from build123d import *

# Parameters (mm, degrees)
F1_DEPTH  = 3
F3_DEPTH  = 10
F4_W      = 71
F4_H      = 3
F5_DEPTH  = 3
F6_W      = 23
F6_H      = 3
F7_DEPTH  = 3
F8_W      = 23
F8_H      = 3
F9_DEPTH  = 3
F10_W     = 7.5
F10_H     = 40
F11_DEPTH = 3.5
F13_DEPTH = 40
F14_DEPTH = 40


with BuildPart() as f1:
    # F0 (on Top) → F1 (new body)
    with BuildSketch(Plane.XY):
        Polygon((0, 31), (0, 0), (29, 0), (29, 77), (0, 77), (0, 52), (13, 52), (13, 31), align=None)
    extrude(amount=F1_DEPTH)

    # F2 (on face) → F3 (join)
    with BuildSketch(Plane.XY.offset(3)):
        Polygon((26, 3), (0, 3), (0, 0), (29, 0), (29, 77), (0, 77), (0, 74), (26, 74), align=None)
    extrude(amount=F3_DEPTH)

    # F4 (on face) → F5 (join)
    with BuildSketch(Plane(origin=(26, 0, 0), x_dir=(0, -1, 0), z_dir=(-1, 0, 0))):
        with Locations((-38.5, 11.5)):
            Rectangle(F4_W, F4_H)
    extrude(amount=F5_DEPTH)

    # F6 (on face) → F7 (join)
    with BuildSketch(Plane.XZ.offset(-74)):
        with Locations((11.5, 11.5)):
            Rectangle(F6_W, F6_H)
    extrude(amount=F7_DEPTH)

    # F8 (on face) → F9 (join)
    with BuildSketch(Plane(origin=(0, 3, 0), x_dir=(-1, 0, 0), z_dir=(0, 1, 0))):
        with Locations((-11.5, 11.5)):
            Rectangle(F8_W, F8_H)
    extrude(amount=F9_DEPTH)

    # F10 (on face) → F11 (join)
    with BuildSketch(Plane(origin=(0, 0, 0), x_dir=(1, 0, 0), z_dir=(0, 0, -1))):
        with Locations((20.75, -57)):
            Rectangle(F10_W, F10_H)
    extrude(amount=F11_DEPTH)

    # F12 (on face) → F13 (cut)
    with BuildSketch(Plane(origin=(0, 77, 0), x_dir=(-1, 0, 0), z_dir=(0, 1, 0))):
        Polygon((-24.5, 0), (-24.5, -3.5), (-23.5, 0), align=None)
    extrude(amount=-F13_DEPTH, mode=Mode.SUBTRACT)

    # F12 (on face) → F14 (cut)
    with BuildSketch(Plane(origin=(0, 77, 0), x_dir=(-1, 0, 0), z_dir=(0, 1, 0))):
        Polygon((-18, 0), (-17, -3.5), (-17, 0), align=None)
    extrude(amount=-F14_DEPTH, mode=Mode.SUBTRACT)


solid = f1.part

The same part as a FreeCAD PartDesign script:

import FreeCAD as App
import Part
import Sketcher


def add_polygon(sketch, points):
    """Adds a closed chain of lines whose ends are joined by coincident constraints."""
    first, n = sketch.GeometryCount, len(points)
    for a, b in zip(points, points[1:] + points[:1]):
        sketch.addGeometry(Part.LineSegment(App.Vector(*a, 0), App.Vector(*b, 0)), False)
    for i in range(n):
        sketch.addConstraint(Sketcher.Constraint("Coincident", first + i, 2, first + (i + 1) % n, 1))

doc = App.newDocument("Part")
body = doc.addObject("PartDesign::Body", "Body")

# Sketch on XY plane
sketch1 = body.newObject("Sketcher::SketchObject", "Sketch")
sketch1.AttachmentSupport = (doc.getObject("XY_Plane"), [""])
sketch1.MapMode = "FlatFace"
add_polygon(sketch1, [(0, 31), (0, 0), (29, 0), (29, 77), (0, 77), (0, 52), (13, 52), (13, 31)])  # lines 0-7
sketch1.addConstraint(Sketcher.Constraint("Vertical", 0))
sketch1.addConstraint(Sketcher.Constraint("Horizontal", 1))
sketch1.addConstraint(Sketcher.Constraint("Vertical", 2))
sketch1.addConstraint(Sketcher.Constraint("Horizontal", 3))
sketch1.addConstraint(Sketcher.Constraint("Vertical", 4))
sketch1.addConstraint(Sketcher.Constraint("Horizontal", 5))
sketch1.addConstraint(Sketcher.Constraint("Vertical", 6))
sketch1.addConstraint(Sketcher.Constraint("Horizontal", 7))
sketch1.addConstraint(Sketcher.Constraint("Coincident", 0, 2, -1, 1))
sketch1.addConstraint(Sketcher.Constraint("PointOnObject", 3, 2, -2))
sketch1.addConstraint(Sketcher.Constraint("DistanceX", 1, 1, 1, 2, 29.0))
sketch1.addConstraint(Sketcher.Constraint("DistanceX", 5, 1, 5, 2, 13.0))
sketch1.addConstraint(Sketcher.Constraint("DistanceY", 0, 2, 0, 1, 31.0))
sketch1.addConstraint(Sketcher.Constraint("DistanceY", 2, 1, 2, 2, 77.0))
sketch1.addConstraint(Sketcher.Constraint("DistanceY", 4, 2, 4, 1, 25.0))
pad1 = body.newObject("PartDesign::Pad", "Pad")
pad1.Profile = sketch1
pad1.Length = 3

# Sketch on XY plane
sketch2 = body.newObject("Sketcher::SketchObject", "Sketch001")
sketch2.AttachmentSupport = (doc.getObject("XY_Plane"), [""])
sketch2.MapMode = "FlatFace"
sketch2.AttachmentOffset = App.Placement(App.Vector(0, 0, 3), App.Rotation())
add_polygon(sketch2, [(26, 3), (0, 3), (0, 0), (29, 0), (29, 77), (0, 77), (0, 74), (26, 74)])  # lines 0-7
sketch2.addConstraint(Sketcher.Constraint("Horizontal", 0))
sketch2.addConstraint(Sketcher.Constraint("Vertical", 1))
sketch2.addConstraint(Sketcher.Constraint("Horizontal", 2))
sketch2.addConstraint(Sketcher.Constraint("Vertical", 3))
sketch2.addConstraint(Sketcher.Constraint("Horizontal", 4))
sketch2.addConstraint(Sketcher.Constraint("Vertical", 5))
sketch2.addConstraint(Sketcher.Constraint("Horizontal", 6))
sketch2.addConstraint(Sketcher.Constraint("Vertical", 7))
sketch2.addConstraint(Sketcher.Constraint("Coincident", 1, 2, -1, 1))
sketch2.addConstraint(Sketcher.Constraint("PointOnObject", 4, 2, -2))
sketch2.addConstraint(Sketcher.Constraint("Equal", 1, 5))
sketch2.addConstraint(Sketcher.Constraint("DistanceX", 0, 2, 0, 1, 26.0))
sketch2.addConstraint(Sketcher.Constraint("DistanceX", 2, 1, 2, 2, 29.0))
sketch2.addConstraint(Sketcher.Constraint("DistanceY", 1, 2, 1, 1, 3.0))
sketch2.addConstraint(Sketcher.Constraint("DistanceY", 3, 1, 3, 2, 77.0))
pad2 = body.newObject("PartDesign::Pad", "Pad001")
pad2.Profile = sketch2
pad2.Length = 10

# Sketch on YZ plane
sketch3 = body.newObject("Sketcher::SketchObject", "Sketch002")
sketch3.AttachmentSupport = (doc.getObject("YZ_Plane"), [""])
sketch3.MapMode = "FlatFace"
sketch3.AttachmentOffset = App.Placement(App.Vector(0, 0, 26), App.Rotation())
add_polygon(sketch3, [(74, 13), (74, 10), (3, 10), (3, 13)])  # lines 0-3
sketch3.addConstraint(Sketcher.Constraint("Vertical", 0))
sketch3.addConstraint(Sketcher.Constraint("Horizontal", 1))
sketch3.addConstraint(Sketcher.Constraint("Vertical", 2))
sketch3.addConstraint(Sketcher.Constraint("Horizontal", 3))
sketch3.addConstraint(Sketcher.Constraint("DistanceX", 1, 2, 1, 1, 71.0))
sketch3.addConstraint(Sketcher.Constraint("DistanceY", 0, 2, 0, 1, 3.0))
sketch3.addConstraint(Sketcher.Constraint("DistanceX", -1, 1, 0, 2, 74.0))
sketch3.addConstraint(Sketcher.Constraint("DistanceY", -1, 1, 0, 2, 10.0))
pad3 = body.newObject("PartDesign::Pad", "Pad002")
pad3.Profile = sketch3
pad3.Length = 3
pad3.Reversed = True

# Sketch on XZ plane
sketch4 = body.newObject("Sketcher::SketchObject", "Sketch003")
sketch4.AttachmentSupport = (doc.getObject("XZ_Plane"), [""])
sketch4.MapMode = "FlatFace"
sketch4.AttachmentOffset = App.Placement(App.Vector(0, 0, -74), App.Rotation())
add_polygon(sketch4, [(0, 13), (0, 10), (23, 10), (23, 13)])  # lines 0-3
sketch4.addConstraint(Sketcher.Constraint("Vertical", 0))
sketch4.addConstraint(Sketcher.Constraint("Horizontal", 1))
sketch4.addConstraint(Sketcher.Constraint("Vertical", 2))
sketch4.addConstraint(Sketcher.Constraint("Horizontal", 3))
sketch4.addConstraint(Sketcher.Constraint("PointOnObject", 0, 2, -2))
sketch4.addConstraint(Sketcher.Constraint("DistanceX", 1, 1, 1, 2, 23.0))
sketch4.addConstraint(Sketcher.Constraint("DistanceY", 0, 2, 0, 1, 3.0))
sketch4.addConstraint(Sketcher.Constraint("DistanceY", -1, 1, 0, 2, 10.0))
pad4 = body.newObject("PartDesign::Pad", "Pad003")
pad4.Profile = sketch4
pad4.Length = 3

# Sketch on XZ plane
sketch5 = body.newObject("Sketcher::SketchObject", "Sketch004")
sketch5.AttachmentSupport = (doc.getObject("XZ_Plane"), [""])
sketch5.MapMode = "FlatFace"
sketch5.AttachmentOffset = App.Placement(App.Vector(0, 0, -3), App.Rotation())
add_polygon(sketch5, [(23, 13), (23, 10), (0, 10), (0, 13)])  # lines 0-3
sketch5.addConstraint(Sketcher.Constraint("Vertical", 0))
sketch5.addConstraint(Sketcher.Constraint("Horizontal", 1))
sketch5.addConstraint(Sketcher.Constraint("Vertical", 2))
sketch5.addConstraint(Sketcher.Constraint("Horizontal", 3))
sketch5.addConstraint(Sketcher.Constraint("PointOnObject", 1, 2, -2))
sketch5.addConstraint(Sketcher.Constraint("DistanceX", 1, 2, 1, 1, 23.0))
sketch5.addConstraint(Sketcher.Constraint("DistanceY", 0, 2, 0, 1, 3.0))
sketch5.addConstraint(Sketcher.Constraint("DistanceY", -1, 1, 0, 2, 10.0))
pad5 = body.newObject("PartDesign::Pad", "Pad004")
pad5.Profile = sketch5
pad5.Length = 3
pad5.Reversed = True

# Sketch on XY plane
sketch6 = body.newObject("Sketcher::SketchObject", "Sketch005")
sketch6.AttachmentSupport = (doc.getObject("XY_Plane"), [""])
sketch6.MapMode = "FlatFace"
add_polygon(sketch6, [(17, 37), (17, 77), (24.5, 77), (24.5, 37)])  # lines 0-3
sketch6.addConstraint(Sketcher.Constraint("Vertical", 0))
sketch6.addConstraint(Sketcher.Constraint("Horizontal", 1))
sketch6.addConstraint(Sketcher.Constraint("Vertical", 2))
sketch6.addConstraint(Sketcher.Constraint("Horizontal", 3))
sketch6.addConstraint(Sketcher.Constraint("DistanceY", 0, 1, 0, 2, 40.0))
sketch6.addConstraint(Sketcher.Constraint("DistanceX", 1, 1, 1, 2, 7.5))
sketch6.addConstraint(Sketcher.Constraint("DistanceX", -1, 1, 0, 2, 17.0))
sketch6.addConstraint(Sketcher.Constraint("DistanceY", -1, 1, 0, 2, 77.0))
pad6 = body.newObject("PartDesign::Pad", "Pad005")
pad6.Profile = sketch6
pad6.Length = 3.5
pad6.Reversed = True

# Sketch on XZ plane
sketch7 = body.newObject("Sketcher::SketchObject", "Sketch006")
sketch7.AttachmentSupport = (doc.getObject("XZ_Plane"), [""])
sketch7.MapMode = "FlatFace"
sketch7.AttachmentOffset = App.Placement(App.Vector(0, 0, -77), App.Rotation())
add_polygon(sketch7, [(24.5, 0), (24.5, -3.5), (23.5, 0)])  # lines 0-2
sketch7.addConstraint(Sketcher.Constraint("Vertical", 0))
sketch7.addConstraint(Sketcher.Constraint("Horizontal", 2))
sketch7.addConstraint(Sketcher.Constraint("PointOnObject", 1, 2, -1))
sketch7.addConstraint(Sketcher.Constraint("DistanceX", 2, 1, 2, 2, 1.0))
sketch7.addConstraint(Sketcher.Constraint("DistanceY", 0, 2, 0, 1, 3.5))
sketch7.addConstraint(Sketcher.Constraint("DistanceX", -1, 1, 0, 2, 24.5))
pocket1 = body.newObject("PartDesign::Pocket", "Pocket")
pocket1.Profile = sketch7
pocket1.Length = 40
pocket1.Reversed = True

# Sketch on XZ plane
sketch8 = body.newObject("Sketcher::SketchObject", "Sketch007")
sketch8.AttachmentSupport = (doc.getObject("XZ_Plane"), [""])
sketch8.MapMode = "FlatFace"
sketch8.AttachmentOffset = App.Placement(App.Vector(0, 0, -77), App.Rotation())
add_polygon(sketch8, [(18, 0), (17, -3.5), (17, 0)])  # lines 0-2
sketch8.addConstraint(Sketcher.Constraint("Vertical", 1))
sketch8.addConstraint(Sketcher.Constraint("Horizontal", 2))
sketch8.addConstraint(Sketcher.Constraint("PointOnObject", 1, 2, -1))
sketch8.addConstraint(Sketcher.Constraint("DistanceX", 2, 1, 2, 2, 1.0))
sketch8.addConstraint(Sketcher.Constraint("DistanceY", 1, 1, 1, 2, 3.5))
sketch8.addConstraint(Sketcher.Constraint("DistanceX", -1, 1, 0, 2, 17.0))
pocket2 = body.newObject("PartDesign::Pocket", "Pocket001")
pocket2.Profile = sketch8
pocket2.Length = 40
pocket2.Reversed = True

doc.recompute()
